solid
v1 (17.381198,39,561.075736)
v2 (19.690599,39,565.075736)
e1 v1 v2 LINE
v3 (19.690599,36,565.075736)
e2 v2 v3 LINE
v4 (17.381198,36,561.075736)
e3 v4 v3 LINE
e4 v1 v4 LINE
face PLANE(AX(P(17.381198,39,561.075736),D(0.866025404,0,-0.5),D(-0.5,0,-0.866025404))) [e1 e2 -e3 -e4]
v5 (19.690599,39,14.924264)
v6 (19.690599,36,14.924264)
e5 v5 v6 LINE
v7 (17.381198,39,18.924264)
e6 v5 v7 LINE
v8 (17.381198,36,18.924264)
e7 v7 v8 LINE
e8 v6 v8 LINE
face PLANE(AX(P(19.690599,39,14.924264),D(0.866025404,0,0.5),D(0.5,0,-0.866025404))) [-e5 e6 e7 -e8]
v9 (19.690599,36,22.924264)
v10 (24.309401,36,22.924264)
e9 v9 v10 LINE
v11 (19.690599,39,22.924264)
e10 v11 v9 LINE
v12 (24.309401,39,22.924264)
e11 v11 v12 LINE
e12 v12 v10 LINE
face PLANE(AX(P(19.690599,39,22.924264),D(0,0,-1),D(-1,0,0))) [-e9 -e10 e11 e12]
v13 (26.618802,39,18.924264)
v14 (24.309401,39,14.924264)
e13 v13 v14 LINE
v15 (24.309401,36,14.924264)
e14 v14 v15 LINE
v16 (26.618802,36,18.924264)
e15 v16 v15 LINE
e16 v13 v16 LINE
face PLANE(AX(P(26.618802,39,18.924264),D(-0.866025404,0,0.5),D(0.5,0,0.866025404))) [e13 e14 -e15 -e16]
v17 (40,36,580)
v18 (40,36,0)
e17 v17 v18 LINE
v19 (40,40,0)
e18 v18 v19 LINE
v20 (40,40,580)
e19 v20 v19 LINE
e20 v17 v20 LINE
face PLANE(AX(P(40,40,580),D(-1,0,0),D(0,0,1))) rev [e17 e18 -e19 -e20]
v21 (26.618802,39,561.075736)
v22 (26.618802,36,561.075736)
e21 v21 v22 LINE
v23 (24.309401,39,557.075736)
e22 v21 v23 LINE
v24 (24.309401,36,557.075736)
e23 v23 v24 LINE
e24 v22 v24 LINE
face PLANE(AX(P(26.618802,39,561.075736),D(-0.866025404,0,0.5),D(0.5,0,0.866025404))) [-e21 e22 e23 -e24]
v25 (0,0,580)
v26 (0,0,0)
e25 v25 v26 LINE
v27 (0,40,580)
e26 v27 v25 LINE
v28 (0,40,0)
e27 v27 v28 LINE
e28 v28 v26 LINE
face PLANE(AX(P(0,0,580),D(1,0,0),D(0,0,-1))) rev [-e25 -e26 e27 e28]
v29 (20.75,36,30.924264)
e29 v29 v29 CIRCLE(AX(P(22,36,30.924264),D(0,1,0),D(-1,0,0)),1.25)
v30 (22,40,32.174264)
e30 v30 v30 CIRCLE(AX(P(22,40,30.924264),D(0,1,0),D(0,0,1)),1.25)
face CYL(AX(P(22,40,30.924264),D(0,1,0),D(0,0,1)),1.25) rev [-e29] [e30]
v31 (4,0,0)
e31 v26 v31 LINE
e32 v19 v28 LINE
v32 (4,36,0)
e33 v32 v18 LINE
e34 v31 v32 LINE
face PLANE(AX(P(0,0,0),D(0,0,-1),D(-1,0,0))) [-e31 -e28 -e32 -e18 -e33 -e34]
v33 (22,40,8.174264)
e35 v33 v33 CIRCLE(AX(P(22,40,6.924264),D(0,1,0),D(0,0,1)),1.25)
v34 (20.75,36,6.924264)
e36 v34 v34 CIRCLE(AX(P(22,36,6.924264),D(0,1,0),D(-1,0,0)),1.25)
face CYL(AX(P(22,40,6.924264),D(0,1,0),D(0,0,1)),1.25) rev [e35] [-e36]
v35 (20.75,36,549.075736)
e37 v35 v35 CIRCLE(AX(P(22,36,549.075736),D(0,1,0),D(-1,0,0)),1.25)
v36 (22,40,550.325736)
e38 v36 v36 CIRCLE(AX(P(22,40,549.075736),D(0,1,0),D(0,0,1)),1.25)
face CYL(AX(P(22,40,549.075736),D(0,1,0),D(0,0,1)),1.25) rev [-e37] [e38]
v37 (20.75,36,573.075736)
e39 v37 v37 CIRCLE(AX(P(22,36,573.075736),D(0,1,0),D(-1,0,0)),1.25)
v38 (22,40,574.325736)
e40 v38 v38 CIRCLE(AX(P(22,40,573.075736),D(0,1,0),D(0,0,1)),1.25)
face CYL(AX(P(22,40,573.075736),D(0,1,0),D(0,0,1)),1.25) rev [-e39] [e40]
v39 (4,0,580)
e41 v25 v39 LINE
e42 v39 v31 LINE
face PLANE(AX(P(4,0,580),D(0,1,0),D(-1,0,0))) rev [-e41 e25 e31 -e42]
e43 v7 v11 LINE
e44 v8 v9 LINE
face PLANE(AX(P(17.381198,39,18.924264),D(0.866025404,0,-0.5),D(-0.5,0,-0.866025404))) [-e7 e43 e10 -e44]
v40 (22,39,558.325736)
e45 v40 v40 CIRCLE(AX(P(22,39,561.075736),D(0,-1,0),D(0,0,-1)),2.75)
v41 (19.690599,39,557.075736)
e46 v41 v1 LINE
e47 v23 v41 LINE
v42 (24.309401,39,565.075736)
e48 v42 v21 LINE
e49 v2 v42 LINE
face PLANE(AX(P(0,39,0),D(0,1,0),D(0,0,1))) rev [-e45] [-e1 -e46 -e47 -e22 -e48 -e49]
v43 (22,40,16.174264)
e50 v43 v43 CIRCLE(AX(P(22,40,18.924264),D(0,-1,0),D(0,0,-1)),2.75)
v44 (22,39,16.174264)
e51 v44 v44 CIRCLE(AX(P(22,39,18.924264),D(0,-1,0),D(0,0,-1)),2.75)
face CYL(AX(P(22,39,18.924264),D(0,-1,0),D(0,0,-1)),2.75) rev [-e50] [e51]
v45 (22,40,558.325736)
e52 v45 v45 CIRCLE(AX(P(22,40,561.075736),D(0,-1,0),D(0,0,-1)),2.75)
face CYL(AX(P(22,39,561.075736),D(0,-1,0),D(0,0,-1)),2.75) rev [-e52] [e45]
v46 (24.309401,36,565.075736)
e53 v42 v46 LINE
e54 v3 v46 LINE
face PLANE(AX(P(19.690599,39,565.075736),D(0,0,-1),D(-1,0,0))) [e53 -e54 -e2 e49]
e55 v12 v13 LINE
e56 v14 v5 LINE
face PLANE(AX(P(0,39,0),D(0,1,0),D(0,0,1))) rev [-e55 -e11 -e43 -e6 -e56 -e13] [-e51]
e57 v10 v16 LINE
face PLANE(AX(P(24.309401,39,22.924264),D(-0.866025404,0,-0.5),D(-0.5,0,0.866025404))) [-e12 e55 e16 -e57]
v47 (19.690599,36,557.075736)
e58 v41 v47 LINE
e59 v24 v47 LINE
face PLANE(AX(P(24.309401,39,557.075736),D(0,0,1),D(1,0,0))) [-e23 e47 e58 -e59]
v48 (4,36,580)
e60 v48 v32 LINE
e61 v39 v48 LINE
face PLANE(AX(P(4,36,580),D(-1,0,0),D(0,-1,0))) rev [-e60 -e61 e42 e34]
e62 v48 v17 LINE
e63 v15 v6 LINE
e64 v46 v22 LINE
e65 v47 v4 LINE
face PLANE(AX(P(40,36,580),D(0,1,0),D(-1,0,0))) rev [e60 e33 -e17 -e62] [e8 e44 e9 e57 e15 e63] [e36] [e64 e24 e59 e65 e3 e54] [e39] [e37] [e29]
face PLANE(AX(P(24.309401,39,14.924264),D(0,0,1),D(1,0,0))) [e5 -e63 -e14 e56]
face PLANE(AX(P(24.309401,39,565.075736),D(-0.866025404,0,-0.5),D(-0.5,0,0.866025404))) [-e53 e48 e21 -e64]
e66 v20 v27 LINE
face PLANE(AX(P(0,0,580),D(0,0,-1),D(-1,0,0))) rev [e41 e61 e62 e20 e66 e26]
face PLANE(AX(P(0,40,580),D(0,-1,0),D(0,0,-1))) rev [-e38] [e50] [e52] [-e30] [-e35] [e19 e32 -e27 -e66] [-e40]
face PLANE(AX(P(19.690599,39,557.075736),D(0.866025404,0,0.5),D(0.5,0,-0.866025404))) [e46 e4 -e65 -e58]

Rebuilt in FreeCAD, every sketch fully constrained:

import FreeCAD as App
import Part
import Sketcher

V = App.Vector
Q = App.Units.Quantity


def add_polygon(sketch, points):
    """Adds a closed chain of lines whose ends are joined by coincident constraints."""
    first, n = sketch.GeometryCount, len(points)
    for a, b in zip(points, points[1:] + points[:1]):
        sketch.addGeometry(Part.LineSegment(App.Vector(*a, 0), App.Vector(*b, 0)), False)
    for i in range(n):
        sketch.addConstraint(Sketcher.Constraint("Coincident", first + i, 2, first + (i + 1) % n, 1))

doc = App.newDocument("Part")
params = doc.addObject("Spreadsheet::Sheet", "Params")
for row, (alias, value) in enumerate([
    ("sketch1_width", "4 mm"),
    ("sketch1_width2", "36 mm"),
    ("pad1_length", "580 mm"),
    ("pocket1_length", "3 mm"),
    ("sketch3_diameter", "2.5 mm"),
    ("hole_diameter", "2.5 mm"),
    ("sketch4_diameter", "5.5 mm"),
    ("hole2_diameter", "5.5 mm"),
], start=1):
    params.set(f"A{row}", alias)
    params.set(f"B{row}", "=" + value)
    params.setAlias(f"B{row}", alias)

body = doc.addObject("PartDesign::Body", "Body")

# Sketch on XY plane
sketch1 = body.newObject("Sketcher::SketchObject", "Sketch")
sketch1.AttachmentSupport = (doc.getObject("XY_Plane"), [""])
sketch1.MapMode = "FlatFace"
add_polygon(sketch1, [(0, 40), (0, 0), (4, 0), (4, 36), (40, 36), (40, 40)])  # lines 0-5
sketch1.addConstraint(Sketcher.Constraint("Vertical", 0))
sketch1.addConstraint(Sketcher.Constraint("Horizontal", 1))
sketch1.addConstraint(Sketcher.Constraint("Vertical", 2))
sketch1.addConstraint(Sketcher.Constraint("Horizontal", 3))
sketch1.addConstraint(Sketcher.Constraint("Vertical", 4))
sketch1.addConstraint(Sketcher.Constraint("Horizontal", 5))
sketch1.addConstraint(Sketcher.Constraint("Coincident", 0, 2, -1, 1))
sketch1.addConstraint(Sketcher.Constraint("Equal", 5, 0))
sketch1.addConstraint(Sketcher.Constraint("Equal", 3, 2))
sketch1.addConstraint(Sketcher.Constraint("DistanceX", 1, 1, 1, 2, Q("4 mm")))
sketch1.addConstraint(Sketcher.Constraint("DistanceX", 3, 1, 3, 2, Q("36 mm")))
sketch1.setExpression("Constraints[15]", "Params.sketch1_width")
sketch1.setExpression("Constraints[16]", "Params.sketch1_width2")
pad1 = body.newObject("PartDesign::Pad", "Pad")
pad1.Profile = sketch1
pad1.setExpression("Length", "Params.pad1_length")

# Sketch on XZ plane
sketch2 = body.newObject("Sketcher::SketchObject", "Sketch001")
sketch2.AttachmentSupport = (doc.getObject("XZ_Plane"), [""])
sketch2.MapMode = "FlatFace"
sketch2.AttachmentOffset = App.Placement(V(0, 0, -36), App.Rotation())
add_polygon(sketch2, [(24.309401, 14.924264), (19.690599, 14.924264), (17.381198, 18.924264), (19.690599, 22.924264), (24.309401, 22.924264), (26.618802, 18.924264)])  # lines 0-5
add_polygon(sketch2, [(24.309401, 557.075736), (19.690599, 557.075736), (17.381198, 561.075736), (19.690599, 565.075736), (24.309401, 565.075736), (26.618802, 561.075736)])  # lines 6-11
sketch2.addConstraint(Sketcher.Constraint("Horizontal", 0))
sketch2.addConstraint(Sketcher.Constraint("Horizontal", 3))
sketch2.addConstraint(Sketcher.Constraint("Horizontal", 6))
sketch2.addConstraint(Sketcher.Constraint("Horizontal", 9))
sketch2.addConstraint(Sketcher.Constraint("Parallel", 1, 4))
sketch2.addConstraint(Sketcher.Constraint("Parallel", 2, 5))
sketch2.addConstraint(Sketcher.Constraint("Parallel", 4, 7))
sketch2.addConstraint(Sketcher.Constraint("Parallel", 5, 8))
sketch2.addConstraint(Sketcher.Constraint("Parallel", 7, 10))
sketch2.addConstraint(Sketcher.Constraint("Parallel", 8, 11))
sketch2.addConstraint(Sketcher.Constraint("Horizontal", 1, 2, 4, 2))
sketch2.addConstraint(Sketcher.Constraint("Horizontal", 7, 2, 10, 2))
sketch2.addConstraint(Sketcher.Constraint("Vertical", 0, 2, 2, 2))
sketch2.addConstraint(Sketcher.Constraint("Vertical", 3, 2, 5, 2))
sketch2.addConstraint(Sketcher.Constraint("Vertical", 2, 2, 6, 2))
sketch2.addConstraint(Sketcher.Constraint("Vertical", 1, 2, 7, 2))
sketch2.addConstraint(Sketcher.Constraint("Vertical", 6, 2, 8, 2))
sketch2.addConstraint(Sketcher.Constraint("Vertical", 5, 2, 9, 2))
sketch2.addConstraint(Sketcher.Constraint("Angle", 1, Q("120 deg")))
sketch2.addConstraint(Sketcher.Constraint("DistanceY", 0, 2, 1, 2, Q("4 mm")))
sketch2.addConstraint(Sketcher.Constraint("DistanceX", -1, 1, 0, 2, Q("19.690599 mm")))
sketch2.addConstraint(Sketcher.Constraint("DistanceX", -1, 1, 3, 2, Q("24.309401 mm")))
sketch2.addConstraint(Sketcher.Constraint("DistanceY", 2, 2, 6, 2, Q("534.151472 mm")))
sketch2.addConstraint(Sketcher.Constraint("DistanceY", -1, 1, 0, 2, Q("14.924264 mm")))
pocket1 = body.newObject("PartDesign::Pocket", "Pocket")
pocket1.Profile = sketch2
pocket1.setExpression("Length", "Params.pocket1_length")

# Sketch on XZ plane
sketch3 = body.newObject("Sketcher::SketchObject", "Sketch002")
sketch3.AttachmentSupport = (doc.getObject("XZ_Plane"), [""])
sketch3.MapMode = "FlatFace"
sketch3.AttachmentOffset = App.Placement(V(0, 0, -40), App.Rotation())
sketch3.addGeometry(Part.Circle(V(22, 549.075736, 0), V(0, 0, 1), 1.25), False)
sketch3.addGeometry(Part.Circle(V(22, 573.075736, 0), V(0, 0, 1), 1.25), False)
sketch3.addGeometry(Part.Circle(V(22, 30.924264, 0), V(0, 0, 1), 1.25), False)
sketch3.addGeometry(Part.Circle(V(22, 6.924264, 0), V(0, 0, 1), 1.25), False)
sketch3.addConstraint(Sketcher.Constraint("Equal", 0, 1))
sketch3.addConstraint(Sketcher.Constraint("Equal", 1, 2))
sketch3.addConstraint(Sketcher.Constraint("Equal", 2, 3))
sketch3.addConstraint(Sketcher.Constraint("Vertical", 0, 3, 1, 3))
sketch3.addConstraint(Sketcher.Constraint("Vertical", 1, 3, 2, 3))
sketch3.addConstraint(Sketcher.Constraint("Vertical", 2, 3, 3, 3))
sketch3.addConstraint(Sketcher.Constraint("Diameter", 0, Q("2.5 mm")))
sketch3.addConstraint(Sketcher.Constraint("DistanceX", -1, 1, 0, 3, Q("22 mm")))
sketch3.addConstraint(Sketcher.Constraint("DistanceY", 0, 3, 1, 3, Q("24 mm")))
sketch3.addConstraint(Sketcher.Constraint("DistanceY", 3, 3, 2, 3, Q("24 mm")))
sketch3.addConstraint(Sketcher.Constraint("DistanceY", 2, 3, 0, 3, Q("518.151472 mm")))
sketch3.addConstraint(Sketcher.Constraint("DistanceY", -1, 1, 0, 3, Q("549.075736 mm")))
sketch3.setExpression("Constraints[6]", "Params.sketch3_diameter")
doc.recompute()
hole = body.newObject("PartDesign::Hole", "Hole")
hole.Profile = sketch3
hole.ThreadType = "None"
hole.setExpression("Diameter", "Params.hole_diameter")
hole.DepthType = "ThroughAll"
hole.Reversed = True

# Sketch on XZ plane
sketch4 = body.newObject("Sketcher::SketchObject", "Sketch003")
sketch4.AttachmentSupport = (doc.getObject("XZ_Plane"), [""])
sketch4.MapMode = "FlatFace"
sketch4.AttachmentOffset = App.Placement(V(0, 0, -39), App.Rotation())
sketch4.addGeometry(Part.Circle(V(22, 561.075736, 0), V(0, 0, 1), 2.75), False)
sketch4.addGeometry(Part.Circle(V(22, 18.924264, 0), V(0, 0, 1), 2.75), False)
sketch4.addConstraint(Sketcher.Constraint("Equal", 0, 1))
sketch4.addConstraint(Sketcher.Constraint("Vertical", 0, 3, 1, 3))
sketch4.addConstraint(Sketcher.Constraint("Diameter", 0, Q("5.5 mm")))
sketch4.addConstraint(Sketcher.Constraint("DistanceX", -1, 1, 0, 3, Q("22 mm")))
sketch4.addConstraint(Sketcher.Constraint("DistanceY", 1, 3, 0, 3, Q("542.151472 mm")))
sketch4.addConstraint(Sketcher.Constraint("DistanceY", -1, 1, 0, 3, Q("561.075736 mm")))
sketch4.setExpression("Constraints[2]", "Params.sketch4_diameter")
doc.recompute()
hole2 = body.newObject("PartDesign::Hole", "Hole001")
hole2.Profile = sketch4
hole2.ThreadType = "None"
hole2.setExpression("Diameter", "Params.hole2_diameter")
hole2.DepthType = "ThroughAll"

doc.recompute()
